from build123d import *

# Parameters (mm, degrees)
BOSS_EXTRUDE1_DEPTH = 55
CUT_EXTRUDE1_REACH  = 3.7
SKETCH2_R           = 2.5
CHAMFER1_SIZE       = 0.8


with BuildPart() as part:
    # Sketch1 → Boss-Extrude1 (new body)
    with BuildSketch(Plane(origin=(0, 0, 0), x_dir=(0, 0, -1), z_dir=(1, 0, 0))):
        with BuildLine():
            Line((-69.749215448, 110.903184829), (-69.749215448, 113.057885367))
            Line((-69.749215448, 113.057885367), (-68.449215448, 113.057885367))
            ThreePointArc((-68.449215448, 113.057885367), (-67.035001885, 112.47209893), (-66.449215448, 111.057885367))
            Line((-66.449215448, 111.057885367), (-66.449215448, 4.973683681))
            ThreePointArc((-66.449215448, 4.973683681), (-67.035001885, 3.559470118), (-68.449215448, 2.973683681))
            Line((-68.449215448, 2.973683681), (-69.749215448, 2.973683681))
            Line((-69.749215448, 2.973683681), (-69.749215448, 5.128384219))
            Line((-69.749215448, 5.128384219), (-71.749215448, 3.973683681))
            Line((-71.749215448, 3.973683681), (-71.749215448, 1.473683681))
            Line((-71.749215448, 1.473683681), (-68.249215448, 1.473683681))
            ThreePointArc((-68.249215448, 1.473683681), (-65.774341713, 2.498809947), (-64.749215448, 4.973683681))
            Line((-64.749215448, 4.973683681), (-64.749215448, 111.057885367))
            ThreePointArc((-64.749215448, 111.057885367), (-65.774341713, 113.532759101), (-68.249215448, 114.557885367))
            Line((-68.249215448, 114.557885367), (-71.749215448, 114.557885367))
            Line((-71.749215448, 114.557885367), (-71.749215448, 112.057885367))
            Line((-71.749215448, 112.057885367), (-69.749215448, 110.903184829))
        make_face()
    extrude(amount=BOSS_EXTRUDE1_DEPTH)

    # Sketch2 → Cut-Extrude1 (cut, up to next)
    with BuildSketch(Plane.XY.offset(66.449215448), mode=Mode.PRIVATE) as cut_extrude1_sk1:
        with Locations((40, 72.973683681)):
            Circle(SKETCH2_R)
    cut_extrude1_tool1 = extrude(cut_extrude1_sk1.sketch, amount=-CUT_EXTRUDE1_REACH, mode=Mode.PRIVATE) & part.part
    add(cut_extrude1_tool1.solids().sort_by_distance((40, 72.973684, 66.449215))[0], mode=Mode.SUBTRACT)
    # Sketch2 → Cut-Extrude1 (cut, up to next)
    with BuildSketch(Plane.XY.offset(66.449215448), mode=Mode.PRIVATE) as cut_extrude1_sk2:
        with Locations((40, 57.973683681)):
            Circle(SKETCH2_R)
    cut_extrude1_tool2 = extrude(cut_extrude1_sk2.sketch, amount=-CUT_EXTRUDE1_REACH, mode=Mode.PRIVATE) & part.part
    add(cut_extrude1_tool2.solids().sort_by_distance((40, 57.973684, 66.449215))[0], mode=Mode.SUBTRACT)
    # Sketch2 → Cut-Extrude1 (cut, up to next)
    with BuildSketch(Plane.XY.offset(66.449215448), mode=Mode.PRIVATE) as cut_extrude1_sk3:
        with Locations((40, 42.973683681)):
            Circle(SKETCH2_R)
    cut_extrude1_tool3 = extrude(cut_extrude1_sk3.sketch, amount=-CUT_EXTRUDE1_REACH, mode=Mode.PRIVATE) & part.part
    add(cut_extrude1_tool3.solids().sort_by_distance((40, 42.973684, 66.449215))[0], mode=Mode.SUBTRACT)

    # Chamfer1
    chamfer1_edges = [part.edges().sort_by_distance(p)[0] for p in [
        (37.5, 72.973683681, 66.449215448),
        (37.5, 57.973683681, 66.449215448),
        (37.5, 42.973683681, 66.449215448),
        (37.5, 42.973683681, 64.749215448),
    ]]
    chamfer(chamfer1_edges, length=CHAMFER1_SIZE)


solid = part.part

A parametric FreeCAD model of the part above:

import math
import FreeCAD as App
import Part
import Sketcher

V = App.Vector
Q = App.Units.Quantity


def edges_at(feature, points):
    """Names of the edges that pass closest to the given points."""
    edges = feature.Shape.Edges
    near = lambda p: min(range(len(edges)), key=lambda i: edges[i].distToShape(Part.Vertex(*p))[0])
    return sorted({f"Edge{near(p) + 1}" for p in points})

doc = App.newDocument("Part")
params = doc.addObject("Spreadsheet::Sheet", "Params")
for row, (alias, value) in enumerate([
    ("sketch1_radius", "2 mm"),
    ("sketch1_radius2", "3.5 mm"),
    ("sketch1_width", "2.5 mm"),
    ("sketch1_height", "1.3 mm"),
    ("sketch1_height2", "3.5 mm"),
    ("pad1_length", "55 mm"),
    ("sketch2_diameter", "5 mm"),
    ("sketch3_diameter", "5 mm"),
    ("sketch4_diameter", "5 mm"),
    ("chamfer_size", "0.8 mm"),
], start=1):
    params.set(f"A{row}", alias)
    params.set(f"B{row}", "=" + value)
    params.setAlias(f"B{row}", alias)

body = doc.addObject("PartDesign::Body", "Body")

sketch1 = body.newObject("Sketcher::SketchObject", "Sketch")
sketch1.AttachmentSupport = (doc.getObject("YZ_Plane"), [""])
sketch1.MapMode = "FlatFace"
sketch1.addGeometry([
    Part.LineSegment(V(110.9, 69.7, 0), V(113.1, 69.7, 0)),
    Part.LineSegment(V(113.1, 69.7, 0), V(113.1, 68.4, 0)),
    Part.ArcOfCircle(Part.Circle(V(111.1, 68.4, 0), V(0, 0, 1), 2), math.radians(-90), math.radians(0)),
    Part.LineSegment(V(111.1, 66.4, 0), V(5, 66.4, 0)),
    Part.ArcOfCircle(Part.Circle(V(5, 68.4, 0), V(0, 0, 1), 2), math.radians(180), math.radians(270)),
    Part.LineSegment(V(3, 68.4, 0), V(3, 69.7, 0)),
    Part.LineSegment(V(3, 69.7, 0), V(5.1, 69.7, 0)),
    Part.LineSegment(V(5.1, 69.7, 0), V(4, 71.7, 0)),
    Part.LineSegment(V(4, 71.7, 0), V(1.5, 71.7, 0)),
    Part.LineSegment(V(1.5, 71.7, 0), V(1.5, 68.2, 0)),
    Part.ArcOfCircle(Part.Circle(V(5, 68.2, 0), V(0, 0, 1), 3.5), math.radians(180), math.radians(270)),
    Part.LineSegment(V(5, 64.7, 0), V(111.1, 64.7, 0)),
    Part.ArcOfCircle(Part.Circle(V(111.1, 68.2, 0), V(0, 0, 1), 3.5), math.radians(-90), math.radians(0)),
    Part.LineSegment(V(114.6, 68.2, 0), V(114.6, 71.7, 0)),
    Part.LineSegment(V(114.6, 71.7, 0), V(112.1, 71.7, 0)),
    Part.LineSegment(V(112.1, 71.7, 0), V(110.9, 69.7, 0)),
], False)
sketch1.addConstraint([
    Sketcher.Constraint("Coincident", 0, 2, 1, 1),
    Sketcher.Constraint("Tangent", 1, 2, 2, 2),
    Sketcher.Constraint("Tangent", 2, 1, 3, 1),
    Sketcher.Constraint("Tangent", 3, 2, 4, 2),
    Sketcher.Constraint("Tangent", 4, 1, 5, 1),
    Sketcher.Constraint("Coincident", 5, 2, 6, 1),
    Sketcher.Constraint("Coincident", 6, 2, 7, 1),
    Sketcher.Constraint("Coincident", 7, 2, 8, 1),
    Sketcher.Constraint("Coincident", 8, 2, 9, 1),
    Sketcher.Constraint("Tangent", 9, 2, 10, 1),
    Sketcher.Constraint("Tangent", 10, 2, 11, 1),
    Sketcher.Constraint("Tangent", 11, 2, 12, 1),
    Sketcher.Constraint("Tangent", 12, 2, 13, 1),
    Sketcher.Constraint("Coincident", 13, 2, 14, 1),
    Sketcher.Constraint("Coincident", 14, 2, 15, 1),
    Sketcher.Constraint("Coincident", 15, 2, 0, 1),
    Sketcher.Constraint("Horizontal", 0),
    Sketcher.Constraint("Vertical", 1),
    Sketcher.Constraint("Horizontal", 3),
    Sketcher.Constraint("Vertical", 5),
    Sketcher.Constraint("Horizontal", 6),
    Sketcher.Constraint("Horizontal", 8),
    Sketcher.Constraint("Vertical", 9),
    Sketcher.Constraint("Horizontal", 11),
    Sketcher.Constraint("Vertical", 13),
    Sketcher.Constraint("Horizontal", 14),
    Sketcher.Constraint("Equal", 2, 4),
    Sketcher.Constraint("Equal", 10, 12),
    Sketcher.Constraint("Horizontal", 0, 2, 5, 2),
    Sketcher.Constraint("Horizontal", 8, 2, 13, 2),
    Sketcher.Constraint("Vertical", 4, 3, 10, 3),
    Sketcher.Constraint("Vertical", 2, 3, 12, 3),
    Sketcher.Constraint("Equal", 0, 6),
    Sketcher.Constraint("Equal", 8, 14),
    Sketcher.Constraint("Radius", 2, Q("2 mm")),
    Sketcher.Constraint("Radius", 10, Q("3.5 mm")),
    Sketcher.Constraint("Angle", 7, Q("120 deg")),
    Sketcher.Constraint("DistanceX", 8, 2, 8, 1, Q("2.5 mm")),
    Sketcher.Constraint("DistanceY", 1, 2, 1, 1, Q("1.3 mm")),
    Sketcher.Constraint("DistanceY", 9, 2, 9, 1, Q("3.5 mm")),
    Sketcher.Constraint("DistanceY", 5, 2, 7, 2, Q("2 mm")),
    Sketcher.Constraint("DistanceX", 3, 2, 3, 1, Q("106.084202 mm")),
    Sketcher.Constraint("DistanceX", -1, 1, 2, 3, Q("111.057885 mm")),
    Sketcher.Constraint("DistanceY", -1, 1, 2, 3, Q("68.449215 mm")),
])
sketch1.setExpression("Constraints[34]", "Params.sketch1_radius")
sketch1.setExpression("Constraints[35]", "Params.sketch1_radius2")
sketch1.setExpression("Constraints[37]", "Params.sketch1_width")
sketch1.setExpression("Constraints[38]", "Params.sketch1_height")
sketch1.setExpression("Constraints[39]", "Params.sketch1_height2")
pad1 = body.newObject("PartDesign::Pad", "Pad")
pad1.Profile = sketch1
pad1.setExpression("Length", "Params.pad1_length")

sketch2 = body.newObject("Sketcher::SketchObject", "Sketch001")
sketch2.AttachmentSupport = (doc.getObject("XY_Plane"), [""])
sketch2.MapMode = "FlatFace"
sketch2.AttachmentOffset = App.Placement(V(0, 0, 66.449215), App.Rotation())
sketch2.addGeometry(Part.Circle(V(40, 73, 0), V(0, 0, 1), 2.5), False)
sketch2.addConstraint([
    Sketcher.Constraint("Diameter", 0, Q("5 mm")),
    Sketcher.Constraint("DistanceX", -1, 1, 0, 3, Q("40 mm")),
    Sketcher.Constraint("DistanceY", -1, 1, 0, 3, Q("72.973684 mm")),
])
sketch2.setExpression("Constraints[0]", "Params.sketch2_diameter")
pocket1 = body.newObject("PartDesign::Pocket", "Pocket")
pocket1.Profile = sketch2
pocket1.Type = "UpToFirst"

sketch3 = body.newObject("Sketcher::SketchObject", "Sketch002")
sketch3.AttachmentSupport = (doc.getObject("XY_Plane"), [""])
sketch3.MapMode = "FlatFace"
sketch3.AttachmentOffset = App.Placement(V(0, 0, 66.449215), App.Rotation())
sketch3.addGeometry(Part.Circle(V(40, 58, 0), V(0, 0, 1), 2.5), False)
sketch3.addConstraint([
    Sketcher.Constraint("Diameter", 0, Q("5 mm")),
    Sketcher.Constraint("DistanceX", -1, 1, 0, 3, Q("40 mm")),
    Sketcher.Constraint("DistanceY", -1, 1, 0, 3, Q("57.973684 mm")),
])
sketch3.setExpression("Constraints[0]", "Params.sketch3_diameter")
pocket2 = body.newObject("PartDesign::Pocket", "Pocket001")
pocket2.Profile = sketch3
pocket2.Type = "UpToFirst"

sketch4 = body.newObject("Sketcher::SketchObject", "Sketch003")
sketch4.AttachmentSupport = (doc.getObject("XY_Plane"), [""])
sketch4.MapMode = "FlatFace"
sketch4.AttachmentOffset = App.Placement(V(0, 0, 66.449215), App.Rotation())
sketch4.addGeometry(Part.Circle(V(40, 43, 0), V(0, 0, 1), 2.5), False)
sketch4.addConstraint([
    Sketcher.Constraint("Diameter", 0, Q("5 mm")),
    Sketcher.Constraint("DistanceX", -1, 1, 0, 3, Q("40 mm")),
    Sketcher.Constraint("DistanceY", -1, 1, 0, 3, Q("42.973684 mm")),
])
sketch4.setExpression("Constraints[0]", "Params.sketch4_diameter")
pocket3 = body.newObject("PartDesign::Pocket", "Pocket002")
pocket3.Profile = sketch4
pocket3.Type = "UpToFirst"
doc.recompute()

chamfer = body.newObject("PartDesign::Chamfer", "Chamfer")
chamfer.Base = (pocket3, edges_at(pocket3, [
    (37.5, 72.974, 66.449),
    (37.5, 57.974, 66.449),
    (37.5, 42.974, 66.449),
    (37.5, 42.974, 64.749),
]))
chamfer.setExpression("Size", "Params.chamfer_size")

doc.recompute()
